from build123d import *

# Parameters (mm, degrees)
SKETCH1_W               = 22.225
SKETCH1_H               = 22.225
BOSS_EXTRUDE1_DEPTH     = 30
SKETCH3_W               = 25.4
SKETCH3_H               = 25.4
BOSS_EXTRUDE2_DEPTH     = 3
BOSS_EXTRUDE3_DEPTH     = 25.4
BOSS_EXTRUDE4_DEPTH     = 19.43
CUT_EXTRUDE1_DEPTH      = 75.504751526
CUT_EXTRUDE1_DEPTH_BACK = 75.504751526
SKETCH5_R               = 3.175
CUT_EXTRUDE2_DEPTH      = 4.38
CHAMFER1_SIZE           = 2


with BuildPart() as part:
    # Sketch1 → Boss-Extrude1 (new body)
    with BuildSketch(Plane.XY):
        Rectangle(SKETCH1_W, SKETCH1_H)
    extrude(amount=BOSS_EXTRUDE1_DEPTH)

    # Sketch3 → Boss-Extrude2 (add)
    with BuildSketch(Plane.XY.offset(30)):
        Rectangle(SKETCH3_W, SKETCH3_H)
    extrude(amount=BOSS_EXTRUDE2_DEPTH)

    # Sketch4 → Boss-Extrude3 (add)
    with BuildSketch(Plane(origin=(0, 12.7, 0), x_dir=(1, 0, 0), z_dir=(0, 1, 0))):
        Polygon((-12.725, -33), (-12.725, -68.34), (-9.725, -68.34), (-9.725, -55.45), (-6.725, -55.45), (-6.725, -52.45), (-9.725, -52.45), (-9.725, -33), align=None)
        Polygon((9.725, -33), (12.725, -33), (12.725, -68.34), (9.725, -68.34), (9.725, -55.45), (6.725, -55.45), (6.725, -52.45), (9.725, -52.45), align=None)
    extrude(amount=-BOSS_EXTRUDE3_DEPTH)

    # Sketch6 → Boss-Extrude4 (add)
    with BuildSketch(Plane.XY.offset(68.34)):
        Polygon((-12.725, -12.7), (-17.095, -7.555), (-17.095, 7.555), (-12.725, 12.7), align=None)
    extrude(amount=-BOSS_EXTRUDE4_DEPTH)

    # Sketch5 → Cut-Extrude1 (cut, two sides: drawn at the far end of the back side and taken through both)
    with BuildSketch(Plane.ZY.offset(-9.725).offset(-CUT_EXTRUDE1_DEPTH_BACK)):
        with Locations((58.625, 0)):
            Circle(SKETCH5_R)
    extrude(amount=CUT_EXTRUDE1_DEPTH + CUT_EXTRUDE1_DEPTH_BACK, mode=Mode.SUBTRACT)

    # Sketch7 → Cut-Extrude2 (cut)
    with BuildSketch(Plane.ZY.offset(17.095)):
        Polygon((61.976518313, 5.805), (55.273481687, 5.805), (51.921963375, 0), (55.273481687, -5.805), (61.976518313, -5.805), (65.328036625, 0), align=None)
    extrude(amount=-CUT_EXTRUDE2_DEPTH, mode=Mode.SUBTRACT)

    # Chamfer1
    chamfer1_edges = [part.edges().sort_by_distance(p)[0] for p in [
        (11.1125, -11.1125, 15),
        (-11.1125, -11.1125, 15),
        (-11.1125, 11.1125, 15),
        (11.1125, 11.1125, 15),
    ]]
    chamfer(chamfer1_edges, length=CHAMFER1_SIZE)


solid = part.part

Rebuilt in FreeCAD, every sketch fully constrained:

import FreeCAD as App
import Part
import Sketcher

V = App.Vector
Q = App.Units.Quantity


def edges_at(feature, points):
    """Names of the edges that pass closest to the given points."""
    edges = feature.Shape.Edges
    near = lambda p: min(range(len(edges)), key=lambda i: edges[i].distToShape(Part.Vertex(*p))[0])
    return sorted({f"Edge{near(p) + 1}" for p in points})

doc = App.newDocument("Part")
body = doc.addObject("PartDesign::Body", "Body")

# Sketch on XY plane
sketch1 = doc.addObject("Sketcher::SketchObject", "Sketch")
body.addObject(sketch1)
sketch1.AttachmentSupport = (doc.XY_Plane, [""])
sketch1.MapMode = "FlatFace"
sketch1.addGeometry([
    Part.LineSegment(V(-11, 11, 0), V(-11, -11, 0)),
    Part.LineSegment(V(-11, -11, 0), V(11, -11, 0)),
    Part.LineSegment(V(11, -11, 0), V(11, 11, 0)),
    Part.LineSegment(V(11, 11, 0), V(-11, 11, 0)),
], False)
sketch1.addConstraint([
    Sketcher.Constraint("Coincident", 0, 2, 1, 1),
    Sketcher.Constraint("Coincident", 1, 2, 2, 1),
    Sketcher.Constraint("Coincident", 2, 2, 3, 1),
    Sketcher.Constraint("Coincident", 3, 2, 0, 1),
    Sketcher.Constraint("Vertical", 0),
    Sketcher.Constraint("Horizontal", 1),
    Sketcher.Constraint("Vertical", 2),
    Sketcher.Constraint("Horizontal", 3),
    Sketcher.Constraint("Symmetric", 0, 2, 2, 2, -1, 1),
    Sketcher.Constraint("Equal", 3, 0),
    Sketcher.Constraint("DistanceX", 1, 1, 1, 2, Q("22.225 mm")),
])
pad1 = doc.addObject("PartDesign::Pad", "Pad")
body.addObject(pad1)
pad1.Profile = sketch1
pad1.Length = 30

# Sketch on XY plane
sketch2 = doc.addObject("Sketcher::SketchObject", "Sketch001")
body.addObject(sketch2)
sketch2.AttachmentSupport = (doc.XY_Plane, [""])
sketch2.MapMode = "FlatFace"
sketch2.AttachmentOffset = App.Placement(V(0, 0, 30), App.Rotation())
sketch2.addGeometry([
    Part.LineSegment(V(-13, 13, 0), V(-13, -13, 0)),
    Part.LineSegment(V(-13, -13, 0), V(13, -13, 0)),
    Part.LineSegment(V(13, -13, 0), V(13, 13, 0)),
    Part.LineSegment(V(13, 13, 0), V(-13, 13, 0)),
], False)
sketch2.addConstraint([
    Sketcher.Constraint("Coincident", 0, 2, 1, 1),
    Sketcher.Constraint("Coincident", 1, 2, 2, 1),
    Sketcher.Constraint("Coincident", 2, 2, 3, 1),
    Sketcher.Constraint("Coincident", 3, 2, 0, 1),
    Sketcher.Constraint("Vertical", 0),
    Sketcher.Constraint("Horizontal", 1),
    Sketcher.Constraint("Vertical", 2),
    Sketcher.Constraint("Horizontal", 3),
    Sketcher.Constraint("Symmetric", 0, 2, 2, 2, -1, 1),
    Sketcher.Constraint("Equal", 3, 0),
    Sketcher.Constraint("DistanceX", 1, 1, 1, 2, Q("25.4 mm")),
])
pad2 = doc.addObject("PartDesign::Pad", "Pad001")
body.addObject(pad2)
pad2.Profile = sketch2
pad2.Length = 3

# Sketch on XZ plane
sketch3 = doc.addObject("Sketcher::SketchObject", "Sketch002")
body.addObject(sketch3)
sketch3.AttachmentSupport = (doc.XZ_Plane, [""])
sketch3.MapMode = "FlatFace"
sketch3.AttachmentOffset = App.Placement(V(0, 0, -12.7), App.Rotation())
sketch3.addGeometry([
    Part.LineSegment(V(-12.7, 33, 0), V(-12.7, 68.3, 0)),  # 0
    Part.LineSegment(V(-12.7, 68.3, 0), V(-9.7, 68.3, 0)),  # 1
    Part.LineSegment(V(-9.7, 68.3, 0), V(-9.7, 55.5, 0)),  # 2
    Part.LineSegment(V(-9.7, 55.5, 0), V(-6.7, 55.5, 0)),  # 3
    Part.LineSegment(V(-6.7, 55.5, 0), V(-6.7, 52.5, 0)),  # 4
    Part.LineSegment(V(-6.7, 52.5, 0), V(-9.7, 52.5, 0)),  # 5
    Part.LineSegment(V(-9.7, 52.5, 0), V(-9.7, 33, 0)),  # 6
    Part.LineSegment(V(-9.7, 33, 0), V(-12.7, 33, 0)),  # 7
    Part.LineSegment(V(12.7, 33, 0), V(9.7, 33, 0)),  # 8
    Part.LineSegment(V(9.7, 33, 0), V(9.7, 52.5, 0)),  # 9
    Part.LineSegment(V(9.7, 52.5, 0), V(6.7, 52.5, 0)),  # 10
    Part.LineSegment(V(6.7, 52.5, 0), V(6.7, 55.5, 0)),  # 11
    Part.LineSegment(V(6.7, 55.5, 0), V(9.7, 55.5, 0)),  # 12
    Part.LineSegment(V(9.7, 55.5, 0), V(9.7, 68.3, 0)),  # 13
    Part.LineSegment(V(9.7, 68.3, 0), V(12.7, 68.3, 0)),  # 14
    Part.LineSegment(V(12.7, 68.3, 0), V(12.7, 33, 0)),  # 15
], False)
sketch3.addConstraint([
    Sketcher.Constraint("Coincident", 0, 2, 1, 1),
    Sketcher.Constraint("Coincident", 1, 2, 2, 1),
    Sketcher.Constraint("Coincident", 2, 2, 3, 1),
    Sketcher.Constraint("Coincident", 3, 2, 4, 1),
    Sketcher.Constraint("Coincident", 4, 2, 5, 1),
    Sketcher.Constraint("Coincident", 5, 2, 6, 1),
    Sketcher.Constraint("Coincident", 6, 2, 7, 1),
    Sketcher.Constraint("Coincident", 7, 2, 0, 1),
    Sketcher.Constraint("Coincident", 8, 2, 9, 1),
    Sketcher.Constraint("Coincident", 9, 2, 10, 1),
    Sketcher.Constraint("Coincident", 10, 2, 11, 1),
    Sketcher.Constraint("Coincident", 11, 2, 12, 1),
    Sketcher.Constraint("Coincident", 12, 2, 13, 1),
    Sketcher.Constraint("Coincident", 13, 2, 14, 1),
    Sketcher.Constraint("Coincident", 14, 2, 15, 1),
    Sketcher.Constraint("Coincident", 15, 2, 8, 1),
    Sketcher.Constraint("Vertical", 0),
    Sketcher.Constraint("Horizontal", 1),
    Sketcher.Constraint("Vertical", 2),
    Sketcher.Constraint("Horizontal", 3),
    Sketcher.Constraint("Vertical", 4),
    Sketcher.Constraint("Horizontal", 5),
    Sketcher.Constraint("Vertical", 6),
    Sketcher.Constraint("Horizontal", 7),
    Sketcher.Constraint("Horizontal", 8),
    Sketcher.Constraint("Vertical", 9),
    Sketcher.Constraint("Horizontal", 10),
    Sketcher.Constraint("Vertical", 11),
    Sketcher.Constraint("Horizontal", 12),
    Sketcher.Constraint("Vertical", 13),
    Sketcher.Constraint("Horizontal", 14),
    Sketcher.Constraint("Vertical", 15),
    Sketcher.Constraint("Symmetric", 6, 2, 8, 2, -2),
    Sketcher.Constraint("Symmetric", 4, 2, 10, 2, -2),
    Sketcher.Constraint("Symmetric", 2, 2, 12, 2, -2),
    Sketcher.Constraint("Symmetric", 0, 2, 14, 2, -2),
    Sketcher.Constraint("Vertical", 2, 2, 5, 2),
    Sketcher.Constraint("Equal", 1, 3),
    Sketcher.Constraint("Equal", 14, 4),
    Sketcher.Constraint("DistanceX", 1, 1, 1, 2, Q("3 mm")),
    Sketcher.Constraint("DistanceY", -1, 1, 6, 2, Q("33 mm")),
    Sketcher.Constraint("DistanceY", 0, 1, 0, 2, Q("35.34 mm")),
    Sketcher.Constraint("DistanceY", 2, 2, 2, 1, Q("12.89 mm")),
    Sketcher.Constraint("DistanceX", 6, 2, 8, 2, Q("19.45 mm")),
])
pad3 = doc.addObject("PartDesign::Pad", "Pad002")
body.addObject(pad3)
pad3.Profile = sketch3
pad3.Length = 25.4

# Sketch on XY plane
sketch4 = doc.addObject("Sketcher::SketchObject", "Sketch003")
body.addObject(sketch4)
sketch4.AttachmentSupport = (doc.XY_Plane, [""])
sketch4.MapMode = "FlatFace"
sketch4.AttachmentOffset = App.Placement(V(0, 0, 68.34), App.Rotation())
sketch4.addGeometry([
    Part.LineSegment(V(-17, -8, 0), V(-13, -13, 0)),
    Part.LineSegment(V(-13, -13, 0), V(-13, 13, 0)),
    Part.LineSegment(V(-13, 13, 0), V(-17, 8, 0)),
    Part.LineSegment(V(-17, 8, 0), V(-17, -8, 0)),
], False)
sketch4.addConstraint([
    Sketcher.Constraint("Coincident", 0, 2, 1, 1),
    Sketcher.Constraint("Coincident", 1, 2, 2, 1),
    Sketcher.Constraint("Coincident", 2, 2, 3, 1),
    Sketcher.Constraint("Coincident", 3, 2, 0, 1),
    Sketcher.Constraint("Vertical", 1),
    Sketcher.Constraint("Vertical", 3),
    Sketcher.Constraint("Equal", 0, 2),
    Sketcher.Constraint("DistanceY", 1, 1, 1, 2, Q("25.4 mm")),
    Sketcher.Constraint("DistanceY", 3, 2, 3, 1, Q("15.11 mm")),
    Sketcher.Constraint("DistanceY", 0, 2, -1, 1, Q("12.7 mm")),
    Sketcher.Constraint("DistanceX", 2, 2, 1, 2, Q("4.37 mm")),
    Sketcher.Constraint("DistanceX", 0, 2, -1, 1, Q("12.725 mm")),
])
pad4 = doc.addObject("PartDesign::Pad", "Pad003")
body.addObject(pad4)
pad4.Profile = sketch4
pad4.Length = 19.43
pad4.Reversed = True

# Sketch on YZ plane
sketch5 = doc.addObject("Sketcher::SketchObject", "Sketch004")
body.addObject(sketch5)
sketch5.AttachmentSupport = (doc.YZ_Plane, [""])
sketch5.MapMode = "FlatFace"
sketch5.AttachmentOffset = App.Placement(V(0, 0, 9.725), App.Rotation())
sketch5.addGeometry(Part.Circle(V(0, 58.6, 0), V(0, 0, 1), 3.2), False)
sketch5.addConstraint([
    Sketcher.Constraint("PointOnObject", 0, 3, -2),
    Sketcher.Constraint("Diameter", 0, Q("6.35 mm")),
    Sketcher.Constraint("DistanceY", -1, 1, 0, 3, Q("58.625 mm")),
])
pocket1 = doc.addObject("PartDesign::Pocket", "Pocket")
body.addObject(pocket1)
pocket1.Profile = sketch5
pocket1.Type = "ThroughAll"
pocket1.Midplane = True

# Sketch on YZ plane
sketch6 = doc.addObject("Sketcher::SketchObject", "Sketch005")
body.addObject(sketch6)
sketch6.AttachmentSupport = (doc.YZ_Plane, [""])
sketch6.MapMode = "FlatFace"
sketch6.AttachmentOffset = App.Placement(V(0, 0, -17.095), App.Rotation())
sketch6.addGeometry([
    Part.LineSegment(V(6, 62, 0), V(6, 55, 0)),  # 0
    Part.LineSegment(V(6, 55, 0), V(0, 52, 0)),  # 1
    Part.LineSegment(V(0, 52, 0), V(-6, 55, 0)),  # 2
    Part.LineSegment(V(-6, 55, 0), V(-6, 62, 0)),  # 3
    Part.LineSegment(V(-6, 62, 0), V(0, 65, 0)),  # 4
    Part.LineSegment(V(0, 65, 0), V(6, 62, 0)),  # 5
], False)
sketch6.addConstraint([
    Sketcher.Constraint("Coincident", 0, 2, 1, 1),
    Sketcher.Constraint("Coincident", 1, 2, 2, 1),
    Sketcher.Constraint("Coincident", 2, 2, 3, 1),
    Sketcher.Constraint("Coincident", 3, 2, 4, 1),
    Sketcher.Constraint("Coincident", 4, 2, 5, 1),
    Sketcher.Constraint("Coincident", 5, 2, 0, 1),
    Sketcher.Constraint("Vertical", 0),
    Sketcher.Constraint("Vertical", 3),
    Sketcher.Constraint("Symmetric", 0, 2, 2, 2, -2),
    Sketcher.Constraint("PointOnObject", 1, 2, -2),
    Sketcher.Constraint("PointOnObject", 4, 2, -2),
    Sketcher.Constraint("Parallel", 1, 4),
    Sketcher.Constraint("Parallel", 2, 5),
    Sketcher.Constraint("Angle", 1, Q("-150 deg")),
    Sketcher.Constraint("DistanceX", 2, 2, 0, 2, Q("11.61 mm")),
    Sketcher.Constraint("DistanceY", 0, 2, 0, 1, Q("6.703037 mm")),
    Sketcher.Constraint("DistanceY", -1, 1, 0, 2, Q("55.273482 mm")),
])
pocket2 = doc.addObject("PartDesign::Pocket", "Pocket001")
body.addObject(pocket2)
pocket2.Profile = sketch6
pocket2.Length = 4.38
pocket2.Reversed = True
doc.recompute()

chamfer = doc.addObject("PartDesign::Chamfer", "Chamfer")
body.addObject(chamfer)
chamfer.Base = (pocket2, edges_at(pocket2, [
    (11.113, -11.113, 15),
    (-11.113, -11.113, 15),
    (-11.113, 11.113, 15),
    (11.113, 11.113, 15),
]))
chamfer.Size = 2

doc.recompute()
